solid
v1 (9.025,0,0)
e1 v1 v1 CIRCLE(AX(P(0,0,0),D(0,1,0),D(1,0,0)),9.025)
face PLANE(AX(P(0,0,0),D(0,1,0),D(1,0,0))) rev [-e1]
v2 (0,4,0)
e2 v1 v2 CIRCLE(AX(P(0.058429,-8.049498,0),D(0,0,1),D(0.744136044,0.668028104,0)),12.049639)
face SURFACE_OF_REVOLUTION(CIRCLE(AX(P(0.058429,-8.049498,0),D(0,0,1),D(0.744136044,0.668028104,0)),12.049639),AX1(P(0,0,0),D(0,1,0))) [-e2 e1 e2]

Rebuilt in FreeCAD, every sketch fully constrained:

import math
import FreeCAD as App
import Part
import Sketcher

doc = App.newDocument("Part")
body = doc.addObject("PartDesign::Body", "Body")

# Sketch on XY plane
sketch1 = body.newObject("Sketcher::SketchObject", "Sketch")
sketch1.AttachmentSupport = (doc.getObject("XY_Plane"), [""])
sketch1.MapMode = "FlatFace"
sketch1.addGeometry(Part.LineSegment(App.Vector(0, 4, 0), App.Vector(0, 0, 0)), False)
sketch1.addGeometry(Part.LineSegment(App.Vector(0, 0, 0), App.Vector(9.025, 0, 0)), False)
sketch1.addGeometry(Part.ArcOfCircle(Part.Circle(App.Vector(0.0585, -8.0494, 0), App.Vector(0, 0, 1), 12.049521), math.radians(41.914934), math.radians(90.27817)), False)
sketch1.addConstraint(Sketcher.Constraint("Coincident", 0, 2, 1, 1))
sketch1.addConstraint(Sketcher.Constraint("Coincident", 1, 2, 2, 1))
sketch1.addConstraint(Sketcher.Constraint("Coincident", 2, 2, 0, 1))
sketch1.addConstraint(Sketcher.Constraint("Vertical", 0))
sketch1.addConstraint(Sketcher.Constraint("Horizontal", 1))
sketch1.addConstraint(Sketcher.Constraint("Coincident", 0, 2, -1, 1))
sketch1.addConstraint(Sketcher.Constraint("DistanceY", 0, 2, 0, 1, 4.0))
sketch1.addConstraint(Sketcher.Constraint("DistanceX", 1, 1, 1, 2, 9.025))
sketch1.addConstraint(Sketcher.Constraint("Radius", 2, 12.0495))
revolution = body.newObject("PartDesign::Revolution", "Revolution")
revolution.Profile = sketch1
revolution.ReferenceAxis = (sketch1, ["V_Axis"])
revolution.Angle = 360

doc.recompute()
